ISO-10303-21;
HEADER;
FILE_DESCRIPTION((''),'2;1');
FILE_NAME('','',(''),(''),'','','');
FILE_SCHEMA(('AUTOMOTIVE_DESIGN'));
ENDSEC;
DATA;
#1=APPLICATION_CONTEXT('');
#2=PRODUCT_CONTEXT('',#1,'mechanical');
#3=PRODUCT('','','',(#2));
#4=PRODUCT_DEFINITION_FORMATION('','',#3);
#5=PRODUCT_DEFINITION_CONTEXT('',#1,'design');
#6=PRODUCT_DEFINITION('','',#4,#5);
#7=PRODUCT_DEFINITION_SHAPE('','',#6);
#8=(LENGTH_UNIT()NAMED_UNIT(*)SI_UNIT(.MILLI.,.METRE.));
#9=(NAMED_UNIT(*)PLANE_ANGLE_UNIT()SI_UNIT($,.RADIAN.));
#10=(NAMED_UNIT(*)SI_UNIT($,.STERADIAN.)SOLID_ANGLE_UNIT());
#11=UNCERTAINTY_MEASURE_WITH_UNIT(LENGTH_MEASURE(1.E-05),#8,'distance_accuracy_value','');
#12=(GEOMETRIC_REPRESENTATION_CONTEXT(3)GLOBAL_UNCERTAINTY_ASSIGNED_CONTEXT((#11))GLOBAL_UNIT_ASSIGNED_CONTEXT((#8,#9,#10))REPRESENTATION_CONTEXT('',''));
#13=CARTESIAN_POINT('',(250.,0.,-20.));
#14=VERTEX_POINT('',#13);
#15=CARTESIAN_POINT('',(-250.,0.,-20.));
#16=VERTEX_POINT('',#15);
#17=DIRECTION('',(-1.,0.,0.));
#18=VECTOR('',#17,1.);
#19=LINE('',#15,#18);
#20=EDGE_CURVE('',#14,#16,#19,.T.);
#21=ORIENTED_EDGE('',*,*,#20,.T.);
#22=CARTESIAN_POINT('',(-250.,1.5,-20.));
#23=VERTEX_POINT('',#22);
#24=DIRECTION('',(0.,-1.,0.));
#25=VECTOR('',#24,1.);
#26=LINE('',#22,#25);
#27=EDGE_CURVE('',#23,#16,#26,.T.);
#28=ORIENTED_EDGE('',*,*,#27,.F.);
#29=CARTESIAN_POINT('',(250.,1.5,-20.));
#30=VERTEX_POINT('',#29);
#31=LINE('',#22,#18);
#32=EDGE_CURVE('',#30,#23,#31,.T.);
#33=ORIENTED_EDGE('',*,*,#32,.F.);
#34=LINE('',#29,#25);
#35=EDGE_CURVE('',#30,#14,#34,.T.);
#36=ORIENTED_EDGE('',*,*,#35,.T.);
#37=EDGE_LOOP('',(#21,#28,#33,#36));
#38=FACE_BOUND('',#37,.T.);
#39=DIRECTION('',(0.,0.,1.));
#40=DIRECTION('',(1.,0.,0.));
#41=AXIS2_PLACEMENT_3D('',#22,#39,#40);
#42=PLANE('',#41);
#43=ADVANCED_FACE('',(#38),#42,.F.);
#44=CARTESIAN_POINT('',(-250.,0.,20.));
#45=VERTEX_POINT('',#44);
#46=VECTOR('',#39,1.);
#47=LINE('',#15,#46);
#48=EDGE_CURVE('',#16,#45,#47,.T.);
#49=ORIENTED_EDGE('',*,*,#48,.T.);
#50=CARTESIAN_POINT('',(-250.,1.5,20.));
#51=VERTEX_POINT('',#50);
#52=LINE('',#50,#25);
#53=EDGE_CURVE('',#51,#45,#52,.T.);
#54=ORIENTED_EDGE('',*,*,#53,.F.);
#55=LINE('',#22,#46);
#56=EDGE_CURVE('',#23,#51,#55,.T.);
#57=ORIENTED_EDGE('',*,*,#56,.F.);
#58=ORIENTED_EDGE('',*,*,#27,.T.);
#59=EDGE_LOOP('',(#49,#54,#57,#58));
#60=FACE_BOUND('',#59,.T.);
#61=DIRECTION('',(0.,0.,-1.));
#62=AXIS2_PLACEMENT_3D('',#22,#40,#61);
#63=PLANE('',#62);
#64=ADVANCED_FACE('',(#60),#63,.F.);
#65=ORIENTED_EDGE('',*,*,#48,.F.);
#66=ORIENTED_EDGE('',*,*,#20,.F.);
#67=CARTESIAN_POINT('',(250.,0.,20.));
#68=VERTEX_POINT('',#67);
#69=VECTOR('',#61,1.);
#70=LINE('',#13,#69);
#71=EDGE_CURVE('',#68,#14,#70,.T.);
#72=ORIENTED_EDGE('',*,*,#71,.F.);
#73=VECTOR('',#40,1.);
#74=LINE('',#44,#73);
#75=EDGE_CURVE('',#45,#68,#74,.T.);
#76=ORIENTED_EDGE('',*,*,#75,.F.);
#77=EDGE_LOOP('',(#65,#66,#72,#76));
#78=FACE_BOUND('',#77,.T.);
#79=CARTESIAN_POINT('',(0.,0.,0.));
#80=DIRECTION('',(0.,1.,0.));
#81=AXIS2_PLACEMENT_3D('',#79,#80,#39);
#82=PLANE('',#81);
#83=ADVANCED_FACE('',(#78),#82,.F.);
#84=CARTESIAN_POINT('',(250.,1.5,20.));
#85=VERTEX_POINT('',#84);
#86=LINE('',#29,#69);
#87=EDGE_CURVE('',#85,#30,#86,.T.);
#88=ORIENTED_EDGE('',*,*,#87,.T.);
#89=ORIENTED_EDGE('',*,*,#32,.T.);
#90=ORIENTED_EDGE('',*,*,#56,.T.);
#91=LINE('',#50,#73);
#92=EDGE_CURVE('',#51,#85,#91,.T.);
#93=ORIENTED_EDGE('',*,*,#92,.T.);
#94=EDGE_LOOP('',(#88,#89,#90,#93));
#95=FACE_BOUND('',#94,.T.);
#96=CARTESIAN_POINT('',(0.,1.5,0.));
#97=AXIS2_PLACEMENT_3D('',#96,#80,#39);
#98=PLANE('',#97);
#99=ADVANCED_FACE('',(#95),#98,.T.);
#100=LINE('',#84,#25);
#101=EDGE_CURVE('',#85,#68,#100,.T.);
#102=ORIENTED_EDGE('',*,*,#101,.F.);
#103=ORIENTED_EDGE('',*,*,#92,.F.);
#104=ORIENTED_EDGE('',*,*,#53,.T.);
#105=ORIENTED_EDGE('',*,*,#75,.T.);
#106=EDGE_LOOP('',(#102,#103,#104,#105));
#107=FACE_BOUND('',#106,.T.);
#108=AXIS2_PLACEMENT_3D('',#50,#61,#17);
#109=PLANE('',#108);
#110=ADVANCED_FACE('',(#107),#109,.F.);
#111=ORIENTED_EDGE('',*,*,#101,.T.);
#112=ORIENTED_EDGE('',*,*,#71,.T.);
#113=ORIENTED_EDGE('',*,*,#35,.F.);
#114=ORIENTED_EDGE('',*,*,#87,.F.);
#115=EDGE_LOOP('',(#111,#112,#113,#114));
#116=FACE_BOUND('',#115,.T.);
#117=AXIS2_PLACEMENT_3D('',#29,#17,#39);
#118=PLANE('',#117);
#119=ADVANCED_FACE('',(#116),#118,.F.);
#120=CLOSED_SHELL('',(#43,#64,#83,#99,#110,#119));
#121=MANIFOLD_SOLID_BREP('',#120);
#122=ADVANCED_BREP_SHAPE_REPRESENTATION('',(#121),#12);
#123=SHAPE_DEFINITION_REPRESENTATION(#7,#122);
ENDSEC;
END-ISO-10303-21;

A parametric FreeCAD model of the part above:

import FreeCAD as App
import Part
import Sketcher

V = App.Vector


def add_polygon(sketch, points):
    """Adds a closed chain of lines whose ends are joined by coincident constraints."""
    first, n = sketch.GeometryCount, len(points)
    for a, b in zip(points, points[1:] + points[:1]):
        sketch.addGeometry(Part.LineSegment(App.Vector(*a, 0), App.Vector(*b, 0)), False)
    for i in range(n):
        sketch.addConstraint(Sketcher.Constraint("Coincident", first + i, 2, first + (i + 1) % n, 1))

doc = App.newDocument("Part")
body = doc.addObject("PartDesign::Body", "Body")

# Sketch on XZ plane
sketch1 = doc.addObject("Sketcher::SketchObject", "Sketch")
body.addObject(sketch1)
sketch1.AttachmentSupport = (doc.XZ_Plane, [""])
sketch1.MapMode = "FlatFace"
add_polygon(sketch1, [(-250, -20), (-250, 20), (250, 20), (250, -20)])  # lines 0-3
sketch1.addConstraint([
    Sketcher.Constraint("Vertical", 0),
    Sketcher.Constraint("Horizontal", 1),
    Sketcher.Constraint("Vertical", 2),
    Sketcher.Constraint("Horizontal", 3),
    Sketcher.Constraint("Symmetric", 0, 2, 2, 2, -1, 1),
    Sketcher.Constraint("DistanceX", 1, 1, 1, 2, 500.0),
    Sketcher.Constraint("DistanceY", 0, 1, 0, 2, 40.0),
])
pad1 = doc.addObject("PartDesign::Pad", "Pad")
body.addObject(pad1)
pad1.Profile = sketch1
pad1.Length = 1.5
pad1.Reversed = True

doc.recompute()
